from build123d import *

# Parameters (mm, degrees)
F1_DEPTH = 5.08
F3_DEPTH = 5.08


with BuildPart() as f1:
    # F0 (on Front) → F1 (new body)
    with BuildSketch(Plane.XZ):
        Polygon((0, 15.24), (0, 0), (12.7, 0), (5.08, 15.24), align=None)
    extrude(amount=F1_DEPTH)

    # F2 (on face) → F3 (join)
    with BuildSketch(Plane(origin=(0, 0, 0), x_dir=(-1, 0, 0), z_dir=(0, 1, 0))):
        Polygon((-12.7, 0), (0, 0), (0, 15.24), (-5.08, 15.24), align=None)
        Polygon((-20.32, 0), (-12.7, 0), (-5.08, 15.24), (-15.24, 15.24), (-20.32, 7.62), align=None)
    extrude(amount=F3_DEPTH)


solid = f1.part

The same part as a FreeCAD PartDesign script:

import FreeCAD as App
import Part
import Sketcher
Q = App.Units.Quantity


def add_polygon(sketch, points):
    """Adds a closed chain of lines whose ends are joined by coincident constraints."""
    first, n = sketch.GeometryCount, len(points)
    for a, b in zip(points, points[1:] + points[:1]):
        sketch.addGeometry(Part.LineSegment(App.Vector(*a, 0), App.Vector(*b, 0)), False)
    for i in range(n):
        sketch.addConstraint(Sketcher.Constraint("Coincident", first + i, 2, first + (i + 1) % n, 1))

doc = App.newDocument("Part")
body = doc.addObject("PartDesign::Body", "Body")

# Sketch on XZ plane
sketch1 = doc.addObject("Sketcher::SketchObject", "Sketch")
body.addObject(sketch1)
sketch1.AttachmentSupport = (doc.XZ_Plane, [""])
sketch1.MapMode = "FlatFace"
add_polygon(sketch1, [(0, 15), (0, 0), (13, 0), (5, 15)])  # lines 0-3
sketch1.addConstraint(Sketcher.Constraint("Vertical", 0))
sketch1.addConstraint(Sketcher.Constraint("Horizontal", 1))
sketch1.addConstraint(Sketcher.Constraint("Horizontal", 3))
sketch1.addConstraint(Sketcher.Constraint("Coincident", 0, 2, -1, 1))
sketch1.addConstraint(Sketcher.Constraint("DistanceX", 1, 1, 1, 2, Q("0.5 in")))
sketch1.addConstraint(Sketcher.Constraint("DistanceX", 3, 2, 3, 1, Q("0.2 in")))
sketch1.addConstraint(Sketcher.Constraint("DistanceY", 0, 2, 0, 1, Q("0.6 in")))
pad1 = doc.addObject("PartDesign::Pad", "Pad")
body.addObject(pad1)
pad1.Profile = sketch1
pad1.Length = Q("0.2 in")

# Sketch on XZ plane
sketch2 = doc.addObject("Sketcher::SketchObject", "Sketch001")
body.addObject(sketch2)
sketch2.AttachmentSupport = (doc.XZ_Plane, [""])
sketch2.MapMode = "FlatFace"
add_polygon(sketch2, [(0, 0), (0, 15), (15, 15), (20, 8), (20, 0)])  # lines 0-4
sketch2.addConstraint(Sketcher.Constraint("Vertical", 0))
sketch2.addConstraint(Sketcher.Constraint("Horizontal", 1))
sketch2.addConstraint(Sketcher.Constraint("Vertical", 3))
sketch2.addConstraint(Sketcher.Constraint("Horizontal", 4))
sketch2.addConstraint(Sketcher.Constraint("Coincident", 4, 2, -1, 1))
sketch2.addConstraint(Sketcher.Constraint("Equal", 1, 0))
sketch2.addConstraint(Sketcher.Constraint("DistanceX", 1, 1, 1, 2, Q("0.6 in")))
sketch2.addConstraint(Sketcher.Constraint("DistanceX", 4, 2, 4, 1, Q("0.8 in")))
sketch2.addConstraint(Sketcher.Constraint("DistanceY", 3, 2, 3, 1, Q("0.3 in")))
pad2 = doc.addObject("PartDesign::Pad", "Pad001")
body.addObject(pad2)
pad2.Profile = sketch2
pad2.Length = Q("0.2 in")
pad2.Reversed = True

doc.recompute()
